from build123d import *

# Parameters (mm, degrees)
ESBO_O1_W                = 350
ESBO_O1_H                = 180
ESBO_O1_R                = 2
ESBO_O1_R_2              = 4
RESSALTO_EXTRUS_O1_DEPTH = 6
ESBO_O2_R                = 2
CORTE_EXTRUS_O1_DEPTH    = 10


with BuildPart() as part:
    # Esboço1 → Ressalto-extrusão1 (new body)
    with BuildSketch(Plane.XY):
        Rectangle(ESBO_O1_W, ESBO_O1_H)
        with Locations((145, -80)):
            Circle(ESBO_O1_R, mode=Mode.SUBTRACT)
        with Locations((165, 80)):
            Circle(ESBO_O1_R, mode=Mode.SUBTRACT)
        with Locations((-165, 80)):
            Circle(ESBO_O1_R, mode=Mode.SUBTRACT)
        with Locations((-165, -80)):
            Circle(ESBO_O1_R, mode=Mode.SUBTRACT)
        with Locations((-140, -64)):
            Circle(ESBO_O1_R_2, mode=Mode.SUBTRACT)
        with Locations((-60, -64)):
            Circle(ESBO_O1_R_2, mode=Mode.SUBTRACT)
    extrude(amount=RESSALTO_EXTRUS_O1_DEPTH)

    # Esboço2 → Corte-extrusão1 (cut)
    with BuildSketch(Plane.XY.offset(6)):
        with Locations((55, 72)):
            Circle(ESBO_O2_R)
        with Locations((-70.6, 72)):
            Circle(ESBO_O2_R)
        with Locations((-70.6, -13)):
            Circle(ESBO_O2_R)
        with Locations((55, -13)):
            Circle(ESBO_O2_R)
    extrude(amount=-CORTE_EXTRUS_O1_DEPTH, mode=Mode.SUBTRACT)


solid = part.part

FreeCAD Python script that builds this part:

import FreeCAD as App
import Part
import Sketcher
from FreeCAD import Vector
Q = App.Units.Quantity


def add_polygon(sketch, points):
    """Adds a closed chain of lines whose ends are joined by coincident constraints."""
    first, n = sketch.GeometryCount, len(points)
    for a, b in zip(points, points[1:] + points[:1]):
        sketch.addGeometry(Part.LineSegment(App.Vector(*a, 0), App.Vector(*b, 0)), False)
    for i in range(n):
        sketch.addConstraint(Sketcher.Constraint("Coincident", first + i, 2, first + (i + 1) % n, 1))

doc = App.newDocument("Part")
body = doc.addObject("PartDesign::Body", "Body")

sketch1 = body.newObject("Sketcher::SketchObject", "Sketch")
sketch1.AttachmentSupport = (doc.getObject("XY_Plane"), [""])
sketch1.MapMode = "FlatFace"
add_polygon(sketch1, [(-175, 90), (-175, -90), (175, -90), (175, 90)])
sketch1.addGeometry(Part.Circle(Vector(-165, -80, 0), Vector(0, 0, 1), 2), False)
sketch1.addGeometry(Part.Circle(Vector(-140, -64, 0), Vector(0, 0, 1), 4), False)
sketch1.addGeometry(Part.Circle(Vector(-60, -64, 0), Vector(0, 0, 1), 4), False)
sketch1.addGeometry(Part.Circle(Vector(145, -80, 0), Vector(0, 0, 1), 2), False)
sketch1.addGeometry(Part.Circle(Vector(-165, 80, 0), Vector(0, 0, 1), 2), False)
sketch1.addGeometry(Part.Circle(Vector(165, 80, 0), Vector(0, 0, 1), 2), False)
sketch1.addConstraint([
    Sketcher.Constraint("Vertical", 0),
    Sketcher.Constraint("Horizontal", 1),
    Sketcher.Constraint("Vertical", 2),
    Sketcher.Constraint("Horizontal", 3),
    Sketcher.Constraint("Equal", 5, 6),
    Sketcher.Constraint("Equal", 4, 7),
    Sketcher.Constraint("Equal", 7, 8),
    Sketcher.Constraint("Equal", 8, 9),
    Sketcher.Constraint("Symmetric", 4, 3, 9, 3, -1, 1),
    Sketcher.Constraint("Symmetric", 0, 2, 2, 2, -1, 1),
    Sketcher.Constraint("Symmetric", 8, 3, 9, 3, -2),
    Sketcher.Constraint("Horizontal", 5, 3, 6, 3),
    Sketcher.Constraint("Horizontal", 4, 3, 7, 3),
    Sketcher.Constraint("Diameter", 4, Q("4 mm")),
    Sketcher.Constraint("Diameter", 5, Q("8 mm")),
    Sketcher.Constraint("DistanceX", 1, 1, 1, 2, Q("350 mm")),
    Sketcher.Constraint("DistanceY", 0, 2, 0, 1, Q("180 mm")),
    Sketcher.Constraint("DistanceX", 4, 3, -1, 1, Q("165 mm")),
    Sketcher.Constraint("DistanceY", 4, 3, -1, 1, Q("80 mm")),
    Sketcher.Constraint("DistanceX", 5, 3, -1, 1, Q("140 mm")),
    Sketcher.Constraint("DistanceY", 5, 3, -1, 1, Q("64 mm")),
    Sketcher.Constraint("DistanceX", 6, 3, -1, 1, Q("60 mm")),
    Sketcher.Constraint("DistanceX", -1, 1, 7, 3, Q("145 mm")),
])
pad1 = body.newObject("PartDesign::Pad", "Pad")
pad1.Profile = sketch1
pad1.Length = 6

sketch2 = body.newObject("Sketcher::SketchObject", "Sketch001")
sketch2.AttachmentSupport = (doc.getObject("XY_Plane"), [""])
sketch2.MapMode = "FlatFace"
sketch2.AttachmentOffset = App.Placement(Vector(0, 0, 6), App.Rotation())
sketch2.addGeometry([
    Part.Circle(Vector(55, 72, 0), Vector(0, 0, 1), 2),
    Part.Circle(Vector(-70.6, 72, 0), Vector(0, 0, 1), 2),
    Part.Circle(Vector(-70.6, -13, 0), Vector(0, 0, 1), 2),
    Part.Circle(Vector(55, -13, 0), Vector(0, 0, 1), 2),
], False)
sketch2.addConstraint([
    Sketcher.Constraint("Equal", 0, 1),
    Sketcher.Constraint("Equal", 1, 2),
    Sketcher.Constraint("Equal", 2, 3),
    Sketcher.Constraint("Horizontal", 0, 3, 1, 3),
    Sketcher.Constraint("Horizontal", 2, 3, 3, 3),
    Sketcher.Constraint("Vertical", 1, 3, 2, 3),
    Sketcher.Constraint("Vertical", 0, 3, 3, 3),
    Sketcher.Constraint("Diameter", 0, Q("4 mm")),
    Sketcher.Constraint("DistanceX", -1, 1, 0, 3, Q("55 mm")),
    Sketcher.Constraint("DistanceY", -1, 1, 0, 3, Q("72 mm")),
    Sketcher.Constraint("DistanceY", 2, 3, -1, 1, Q("13 mm")),
    Sketcher.Constraint("DistanceX", 1, 3, -1, 1, Q("70.6 mm")),
])
pocket1 = body.newObject("PartDesign::Pocket", "Pocket")
pocket1.Profile = sketch2
pocket1.Length = 10

doc.recompute()
